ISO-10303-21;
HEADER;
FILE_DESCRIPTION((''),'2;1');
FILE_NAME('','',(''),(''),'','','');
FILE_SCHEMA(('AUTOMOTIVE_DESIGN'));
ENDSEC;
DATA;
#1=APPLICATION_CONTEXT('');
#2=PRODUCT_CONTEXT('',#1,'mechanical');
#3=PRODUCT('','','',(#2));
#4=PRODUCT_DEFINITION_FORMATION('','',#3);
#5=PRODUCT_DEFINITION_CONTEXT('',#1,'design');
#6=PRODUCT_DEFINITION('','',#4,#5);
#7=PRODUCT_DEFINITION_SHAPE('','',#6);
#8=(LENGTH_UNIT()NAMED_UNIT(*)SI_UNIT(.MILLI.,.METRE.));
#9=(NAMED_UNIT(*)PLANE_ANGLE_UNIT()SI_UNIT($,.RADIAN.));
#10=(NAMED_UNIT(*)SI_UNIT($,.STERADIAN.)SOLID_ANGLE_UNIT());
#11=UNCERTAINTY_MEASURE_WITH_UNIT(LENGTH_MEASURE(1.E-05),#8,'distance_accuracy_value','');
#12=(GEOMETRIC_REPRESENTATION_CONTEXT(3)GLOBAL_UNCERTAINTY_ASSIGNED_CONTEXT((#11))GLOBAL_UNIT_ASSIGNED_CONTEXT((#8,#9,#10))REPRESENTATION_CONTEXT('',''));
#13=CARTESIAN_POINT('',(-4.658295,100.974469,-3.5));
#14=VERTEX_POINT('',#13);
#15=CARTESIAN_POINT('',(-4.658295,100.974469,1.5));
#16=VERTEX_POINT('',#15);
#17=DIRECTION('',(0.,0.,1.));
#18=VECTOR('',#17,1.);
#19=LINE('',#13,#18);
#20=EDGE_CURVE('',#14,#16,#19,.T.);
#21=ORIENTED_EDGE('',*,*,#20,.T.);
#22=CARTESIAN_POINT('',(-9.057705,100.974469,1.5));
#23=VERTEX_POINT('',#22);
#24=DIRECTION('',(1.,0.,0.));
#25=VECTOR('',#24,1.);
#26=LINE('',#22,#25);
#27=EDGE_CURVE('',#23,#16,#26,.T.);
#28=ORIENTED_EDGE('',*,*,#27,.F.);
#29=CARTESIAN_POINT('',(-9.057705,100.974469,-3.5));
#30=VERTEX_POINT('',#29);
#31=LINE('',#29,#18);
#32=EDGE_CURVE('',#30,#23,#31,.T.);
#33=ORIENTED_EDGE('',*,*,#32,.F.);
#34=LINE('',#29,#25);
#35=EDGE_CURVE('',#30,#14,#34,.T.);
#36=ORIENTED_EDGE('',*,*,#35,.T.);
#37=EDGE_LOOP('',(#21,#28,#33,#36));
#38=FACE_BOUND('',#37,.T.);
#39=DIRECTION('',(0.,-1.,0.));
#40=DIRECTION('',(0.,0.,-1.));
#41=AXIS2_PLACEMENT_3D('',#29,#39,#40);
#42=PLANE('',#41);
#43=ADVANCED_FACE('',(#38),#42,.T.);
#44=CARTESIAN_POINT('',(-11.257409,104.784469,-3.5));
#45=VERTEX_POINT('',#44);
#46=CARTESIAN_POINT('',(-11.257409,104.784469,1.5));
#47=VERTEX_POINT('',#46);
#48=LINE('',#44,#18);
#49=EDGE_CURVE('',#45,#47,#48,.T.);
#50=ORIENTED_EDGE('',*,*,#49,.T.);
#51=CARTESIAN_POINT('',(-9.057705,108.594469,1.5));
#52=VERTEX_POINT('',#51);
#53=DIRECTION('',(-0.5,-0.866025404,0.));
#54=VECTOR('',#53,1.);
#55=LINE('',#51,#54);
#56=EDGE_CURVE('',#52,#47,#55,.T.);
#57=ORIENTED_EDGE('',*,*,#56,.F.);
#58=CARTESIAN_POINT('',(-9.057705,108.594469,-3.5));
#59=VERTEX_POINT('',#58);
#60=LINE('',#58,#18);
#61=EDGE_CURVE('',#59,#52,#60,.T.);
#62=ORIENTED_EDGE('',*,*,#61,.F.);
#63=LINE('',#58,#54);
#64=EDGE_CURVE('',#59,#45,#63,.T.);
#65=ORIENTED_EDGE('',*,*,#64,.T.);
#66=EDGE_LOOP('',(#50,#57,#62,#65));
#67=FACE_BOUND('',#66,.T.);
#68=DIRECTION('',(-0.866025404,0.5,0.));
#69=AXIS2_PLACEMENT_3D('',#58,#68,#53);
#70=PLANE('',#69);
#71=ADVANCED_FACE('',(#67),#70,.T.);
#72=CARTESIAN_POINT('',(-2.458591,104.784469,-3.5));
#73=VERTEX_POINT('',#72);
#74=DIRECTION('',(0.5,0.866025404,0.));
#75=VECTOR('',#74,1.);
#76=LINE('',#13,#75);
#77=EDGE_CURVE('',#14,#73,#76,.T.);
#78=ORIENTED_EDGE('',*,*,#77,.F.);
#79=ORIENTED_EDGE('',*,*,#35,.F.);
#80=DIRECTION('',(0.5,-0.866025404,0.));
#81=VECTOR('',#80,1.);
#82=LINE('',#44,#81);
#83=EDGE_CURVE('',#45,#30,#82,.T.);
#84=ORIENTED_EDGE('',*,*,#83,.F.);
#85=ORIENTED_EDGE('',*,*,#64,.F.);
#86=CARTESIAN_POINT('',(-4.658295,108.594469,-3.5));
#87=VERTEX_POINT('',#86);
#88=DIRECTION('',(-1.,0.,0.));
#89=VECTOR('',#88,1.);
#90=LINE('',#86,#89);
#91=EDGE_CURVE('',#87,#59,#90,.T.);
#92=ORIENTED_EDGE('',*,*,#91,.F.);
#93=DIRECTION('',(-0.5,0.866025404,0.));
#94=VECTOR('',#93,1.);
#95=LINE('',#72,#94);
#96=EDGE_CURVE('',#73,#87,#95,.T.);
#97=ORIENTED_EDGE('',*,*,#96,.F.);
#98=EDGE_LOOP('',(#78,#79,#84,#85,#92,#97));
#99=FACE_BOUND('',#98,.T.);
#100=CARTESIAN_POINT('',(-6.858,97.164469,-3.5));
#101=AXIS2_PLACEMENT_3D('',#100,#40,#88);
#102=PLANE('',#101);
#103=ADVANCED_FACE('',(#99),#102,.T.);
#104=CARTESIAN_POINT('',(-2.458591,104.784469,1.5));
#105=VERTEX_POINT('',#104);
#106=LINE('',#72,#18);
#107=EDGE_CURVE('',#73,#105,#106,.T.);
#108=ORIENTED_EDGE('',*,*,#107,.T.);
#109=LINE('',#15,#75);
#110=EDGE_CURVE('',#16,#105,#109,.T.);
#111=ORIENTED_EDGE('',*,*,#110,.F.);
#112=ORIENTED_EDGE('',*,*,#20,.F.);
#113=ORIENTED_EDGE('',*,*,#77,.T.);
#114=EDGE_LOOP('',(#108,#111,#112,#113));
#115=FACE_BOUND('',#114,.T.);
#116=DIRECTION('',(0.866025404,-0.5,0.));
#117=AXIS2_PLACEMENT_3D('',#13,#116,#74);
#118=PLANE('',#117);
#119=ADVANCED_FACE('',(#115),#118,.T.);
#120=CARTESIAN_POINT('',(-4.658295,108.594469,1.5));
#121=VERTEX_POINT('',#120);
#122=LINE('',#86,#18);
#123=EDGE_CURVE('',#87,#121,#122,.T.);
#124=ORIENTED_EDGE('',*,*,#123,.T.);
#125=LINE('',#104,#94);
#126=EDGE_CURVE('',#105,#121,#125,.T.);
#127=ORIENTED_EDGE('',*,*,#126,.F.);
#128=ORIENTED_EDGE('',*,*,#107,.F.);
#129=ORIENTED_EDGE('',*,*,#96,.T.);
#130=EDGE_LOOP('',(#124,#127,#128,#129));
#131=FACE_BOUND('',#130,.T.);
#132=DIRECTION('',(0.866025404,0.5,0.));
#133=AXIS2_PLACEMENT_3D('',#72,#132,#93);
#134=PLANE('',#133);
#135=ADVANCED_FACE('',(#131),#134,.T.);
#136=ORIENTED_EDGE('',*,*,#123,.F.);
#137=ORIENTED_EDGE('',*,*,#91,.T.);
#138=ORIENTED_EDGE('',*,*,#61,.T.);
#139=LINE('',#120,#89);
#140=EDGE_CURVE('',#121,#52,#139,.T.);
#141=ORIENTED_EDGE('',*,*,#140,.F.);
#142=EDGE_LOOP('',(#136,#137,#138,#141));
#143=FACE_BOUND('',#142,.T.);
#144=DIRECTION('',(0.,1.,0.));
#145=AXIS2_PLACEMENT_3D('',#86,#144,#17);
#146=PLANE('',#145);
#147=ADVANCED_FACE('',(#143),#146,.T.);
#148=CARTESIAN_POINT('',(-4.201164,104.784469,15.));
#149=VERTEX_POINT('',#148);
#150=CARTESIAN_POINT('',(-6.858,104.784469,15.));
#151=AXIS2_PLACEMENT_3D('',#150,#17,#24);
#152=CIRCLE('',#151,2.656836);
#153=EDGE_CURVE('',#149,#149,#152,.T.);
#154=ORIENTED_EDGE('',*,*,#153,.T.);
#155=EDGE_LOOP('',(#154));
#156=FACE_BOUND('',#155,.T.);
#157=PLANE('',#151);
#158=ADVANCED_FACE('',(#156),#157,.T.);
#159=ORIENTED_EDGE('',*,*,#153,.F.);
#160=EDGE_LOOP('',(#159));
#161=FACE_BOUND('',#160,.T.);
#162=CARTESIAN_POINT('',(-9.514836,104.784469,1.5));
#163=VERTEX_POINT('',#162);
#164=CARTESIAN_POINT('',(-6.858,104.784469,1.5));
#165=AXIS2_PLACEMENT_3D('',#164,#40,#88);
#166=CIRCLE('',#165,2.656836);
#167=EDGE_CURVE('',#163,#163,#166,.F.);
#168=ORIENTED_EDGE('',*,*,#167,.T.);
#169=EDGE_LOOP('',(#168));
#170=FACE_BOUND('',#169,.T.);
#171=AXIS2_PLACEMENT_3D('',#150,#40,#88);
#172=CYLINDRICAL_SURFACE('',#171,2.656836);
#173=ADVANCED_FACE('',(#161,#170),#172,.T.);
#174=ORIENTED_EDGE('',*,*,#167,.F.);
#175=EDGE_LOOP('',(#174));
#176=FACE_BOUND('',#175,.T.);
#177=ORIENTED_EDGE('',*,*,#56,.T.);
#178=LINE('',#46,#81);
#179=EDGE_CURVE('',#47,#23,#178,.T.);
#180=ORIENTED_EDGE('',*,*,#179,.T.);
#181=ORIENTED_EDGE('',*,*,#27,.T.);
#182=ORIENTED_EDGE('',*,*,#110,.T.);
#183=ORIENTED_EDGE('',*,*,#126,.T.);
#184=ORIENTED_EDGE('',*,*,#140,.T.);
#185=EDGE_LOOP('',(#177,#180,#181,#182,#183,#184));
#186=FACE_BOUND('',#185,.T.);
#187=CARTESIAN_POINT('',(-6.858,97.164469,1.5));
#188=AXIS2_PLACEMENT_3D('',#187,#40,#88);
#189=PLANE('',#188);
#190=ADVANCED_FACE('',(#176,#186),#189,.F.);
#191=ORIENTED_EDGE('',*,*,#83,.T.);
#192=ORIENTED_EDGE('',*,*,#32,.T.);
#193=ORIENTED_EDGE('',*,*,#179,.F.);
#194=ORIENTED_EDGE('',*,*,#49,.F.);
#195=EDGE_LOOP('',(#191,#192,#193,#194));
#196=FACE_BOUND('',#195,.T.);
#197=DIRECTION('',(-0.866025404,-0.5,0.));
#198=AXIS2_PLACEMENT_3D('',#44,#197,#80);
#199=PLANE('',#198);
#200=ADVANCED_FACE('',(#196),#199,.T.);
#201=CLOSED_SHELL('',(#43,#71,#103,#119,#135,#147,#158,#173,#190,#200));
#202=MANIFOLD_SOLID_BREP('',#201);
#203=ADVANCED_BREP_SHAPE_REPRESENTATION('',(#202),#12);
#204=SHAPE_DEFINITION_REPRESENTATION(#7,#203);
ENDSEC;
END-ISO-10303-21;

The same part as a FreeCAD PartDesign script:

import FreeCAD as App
import Part
import Sketcher
from FreeCAD import Vector
Q = App.Units.Quantity


def add_polygon(sketch, points):
    """Adds a closed chain of lines whose ends are joined by coincident constraints."""
    first, n = sketch.GeometryCount, len(points)
    for a, b in zip(points, points[1:] + points[:1]):
        sketch.addGeometry(Part.LineSegment(App.Vector(*a, 0), App.Vector(*b, 0)), False)
    for i in range(n):
        sketch.addConstraint(Sketcher.Constraint("Coincident", first + i, 2, first + (i + 1) % n, 1))

doc = App.newDocument("Part")
body = doc.addObject("PartDesign::Body", "Body")

# Sketch on XY plane
sketch1 = body.newObject("Sketcher::SketchObject", "Sketch")
sketch1.AttachmentSupport = (doc.getObject("XY_Plane"), [""])
sketch1.MapMode = "FlatFace"
add_polygon(sketch1, [(-2.458591, 104.784469), (-4.658295, 108.594469), (-9.057705, 108.594469), (-11.257409, 104.784469), (-9.057705, 100.974469), (-4.658295, 100.974469)])  # lines 0-5
sketch1.addConstraint([
    Sketcher.Constraint("Horizontal", 1),
    Sketcher.Constraint("Horizontal", 4),
    Sketcher.Constraint("Parallel", 0, 3),
    Sketcher.Constraint("Parallel", 2, 5),
    Sketcher.Constraint("Horizontal", 2, 2, 5, 2),
    Sketcher.Constraint("Vertical", 1, 2, 3, 2),
    Sketcher.Constraint("Vertical", 0, 2, 4, 2),
    Sketcher.Constraint("Angle", 0, Q("120 deg")),
    Sketcher.Constraint("DistanceY", 2, 2, 1, 2, 3.81),
    Sketcher.Constraint("DistanceX", 1, 2, 1, 1, 4.399409),
    Sketcher.Constraint("DistanceY", -1, 1, 0, 2, 108.594469),
    Sketcher.Constraint("DistanceX", 2, 2, -1, 1, 11.257409),
])
pad1 = body.newObject("PartDesign::Pad", "Pad")
pad1.Profile = sketch1
pad1.Type = "TwoLengths"
pad1.Length = 1.5
pad1.Length2 = 3.5

# Sketch on XY plane
sketch2 = body.newObject("Sketcher::SketchObject", "Sketch001")
sketch2.AttachmentSupport = (doc.getObject("XY_Plane"), [""])
sketch2.MapMode = "FlatFace"
sketch2.AttachmentOffset = App.Placement(Vector(0, 0, 1.5), App.Rotation())
sketch2.addGeometry(Part.Circle(Vector(-6.858, 104.784469, 0), Vector(0, 0, 1), 2.656836), False)
sketch2.addConstraint([
    Sketcher.Constraint("Diameter", 0, 5.313671),
    Sketcher.Constraint("DistanceX", 0, 3, -1, 1, 6.858),
    Sketcher.Constraint("DistanceY", -1, 1, 0, 3, 104.784469),
])
pad2 = body.newObject("PartDesign::Pad", "Pad001")
pad2.Profile = sketch2
pad2.Length = 13.5

doc.recompute()
